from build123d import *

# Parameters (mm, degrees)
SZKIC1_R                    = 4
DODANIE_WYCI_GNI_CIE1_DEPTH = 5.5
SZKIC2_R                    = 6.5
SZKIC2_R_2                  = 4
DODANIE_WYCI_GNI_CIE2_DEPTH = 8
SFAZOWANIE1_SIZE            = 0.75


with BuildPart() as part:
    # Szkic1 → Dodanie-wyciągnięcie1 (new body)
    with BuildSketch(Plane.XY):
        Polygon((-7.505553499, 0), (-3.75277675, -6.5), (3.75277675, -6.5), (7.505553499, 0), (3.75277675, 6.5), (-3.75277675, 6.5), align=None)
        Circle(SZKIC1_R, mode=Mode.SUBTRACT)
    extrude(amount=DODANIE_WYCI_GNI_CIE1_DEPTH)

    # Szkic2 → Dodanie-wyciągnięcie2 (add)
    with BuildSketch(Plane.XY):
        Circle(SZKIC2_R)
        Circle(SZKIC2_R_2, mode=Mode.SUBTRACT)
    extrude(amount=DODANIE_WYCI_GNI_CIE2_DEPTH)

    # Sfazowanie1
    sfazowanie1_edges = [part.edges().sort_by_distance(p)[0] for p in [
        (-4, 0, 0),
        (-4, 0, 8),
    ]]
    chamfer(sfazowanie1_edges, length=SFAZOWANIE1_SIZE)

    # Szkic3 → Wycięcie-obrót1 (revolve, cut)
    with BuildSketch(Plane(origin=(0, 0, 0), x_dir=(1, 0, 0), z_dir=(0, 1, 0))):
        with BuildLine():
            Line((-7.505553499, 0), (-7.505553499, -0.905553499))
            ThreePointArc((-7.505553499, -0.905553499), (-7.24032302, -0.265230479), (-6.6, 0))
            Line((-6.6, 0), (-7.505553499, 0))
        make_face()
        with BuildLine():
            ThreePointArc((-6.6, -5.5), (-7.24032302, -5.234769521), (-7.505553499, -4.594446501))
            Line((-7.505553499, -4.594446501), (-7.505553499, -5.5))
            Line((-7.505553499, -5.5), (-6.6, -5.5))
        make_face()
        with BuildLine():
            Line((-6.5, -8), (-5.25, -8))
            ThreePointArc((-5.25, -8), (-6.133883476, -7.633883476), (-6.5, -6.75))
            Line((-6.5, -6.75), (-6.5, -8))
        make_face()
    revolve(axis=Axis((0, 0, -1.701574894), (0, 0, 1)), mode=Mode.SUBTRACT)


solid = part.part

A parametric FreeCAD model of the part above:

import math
import FreeCAD as App
import Part
import Sketcher
Q = App.Units.Quantity


def edges_at(feature, points):
    """Names of the edges that pass closest to the given points."""
    edges = feature.Shape.Edges
    near = lambda p: min(range(len(edges)), key=lambda i: edges[i].distToShape(Part.Vertex(*p))[0])
    return sorted({f"Edge{near(p) + 1}" for p in points})

doc = App.newDocument("Part")
body = doc.addObject("PartDesign::Body", "Body")

# Sketch on XY plane
sketch1 = doc.addObject("Sketcher::SketchObject", "Sketch")
body.addObject(sketch1)
sketch1.AttachmentSupport = (doc.XY_Plane, [""])
sketch1.MapMode = "FlatFace"
sketch1.addGeometry([
    Part.LineSegment(App.Vector(-7.5, 0, 0), App.Vector(-3.8, -6.5, 0)),  # 0
    Part.LineSegment(App.Vector(-3.8, -6.5, 0), App.Vector(3.8, -6.5, 0)),  # 1
    Part.LineSegment(App.Vector(3.8, -6.5, 0), App.Vector(7.5, 0, 0)),  # 2
    Part.LineSegment(App.Vector(7.5, 0, 0), App.Vector(3.8, 6.5, 0)),  # 3
    Part.LineSegment(App.Vector(3.8, 6.5, 0), App.Vector(-3.8, 6.5, 0)),  # 4
    Part.LineSegment(App.Vector(-3.8, 6.5, 0), App.Vector(-7.5, 0, 0)),  # 5
    Part.Circle(App.Vector(0, 0, 0), App.Vector(0, 0, 1), 4),  # 6
], False)
sketch1.addConstraint([
    Sketcher.Constraint("Coincident", 0, 2, 1, 1),
    Sketcher.Constraint("Coincident", 1, 2, 2, 1),
    Sketcher.Constraint("Coincident", 2, 2, 3, 1),
    Sketcher.Constraint("Coincident", 3, 2, 4, 1),
    Sketcher.Constraint("Coincident", 4, 2, 5, 1),
    Sketcher.Constraint("Coincident", 5, 2, 0, 1),
    Sketcher.Constraint("Horizontal", 1),
    Sketcher.Constraint("Horizontal", 4),
    Sketcher.Constraint("Coincident", 6, 3, -1, 1),
    Sketcher.Constraint("Symmetric", 0, 2, 3, 2, -1, 1),
    Sketcher.Constraint("Symmetric", 2, 2, 5, 2, -1, 1),
    Sketcher.Constraint("PointOnObject", 2, 2, -1),
    Sketcher.Constraint("Parallel", 2, 5),
    Sketcher.Constraint("Vertical", 1, 2, 3, 2),
    Sketcher.Constraint("Diameter", 6, Q("8 mm")),
    Sketcher.Constraint("Angle", 0, Q("-60 deg")),
    Sketcher.Constraint("DistanceY", 1, 2, 3, 2, Q("13 mm")),
    Sketcher.Constraint("DistanceX", 1, 1, 1, 2, Q("7.505554 mm")),
])
pad1 = doc.addObject("PartDesign::Pad", "Pad")
body.addObject(pad1)
pad1.Profile = sketch1
pad1.Length = 5.5

# Sketch on XY plane
sketch2 = doc.addObject("Sketcher::SketchObject", "Sketch001")
body.addObject(sketch2)
sketch2.AttachmentSupport = (doc.XY_Plane, [""])
sketch2.MapMode = "FlatFace"
sketch2.addGeometry([
    Part.Circle(App.Vector(0, 0, 0), App.Vector(0, 0, 1), 6.5),
    Part.Circle(App.Vector(0, 0, 0), App.Vector(0, 0, 1), 4),
], False)
sketch2.addConstraint([
    Sketcher.Constraint("Coincident", 0, 3, -1, 1),
    Sketcher.Constraint("Coincident", 1, 3, -1, 1),
    Sketcher.Constraint("Diameter", 0, Q("13 mm")),
    Sketcher.Constraint("Diameter", 1, Q("8 mm")),
])
pad2 = doc.addObject("PartDesign::Pad", "Pad001")
body.addObject(pad2)
pad2.Profile = sketch2
pad2.Length = 8
doc.recompute()

chamfer = doc.addObject("PartDesign::Chamfer", "Chamfer")
body.addObject(chamfer)
chamfer.Base = (pad2, edges_at(pad2, [(-4, 0, 0), (-4, 0, 8)]))
chamfer.Size = 0.75

# Sketch on XZ plane
sketch3 = doc.addObject("Sketcher::SketchObject", "Sketch002")
body.addObject(sketch3)
sketch3.AttachmentSupport = (doc.XZ_Plane, [""])
sketch3.MapMode = "FlatFace"
sketch3.addGeometry([
    Part.LineSegment(App.Vector(-7.5, 0, 0), App.Vector(-7.5, 0.9, 0)),  # 0
    Part.ArcOfCircle(Part.Circle(App.Vector(-6.6, 0.9, 0), App.Vector(0, 0, 1), 0.9), math.radians(180), math.radians(270)),  # 1
    Part.LineSegment(App.Vector(-6.6, 0, 0), App.Vector(-7.5, 0, 0)),  # 2
    Part.ArcOfCircle(Part.Circle(App.Vector(-6.6, 4.6, 0), App.Vector(0, 0, 1), 0.9), math.radians(90), math.radians(180)),  # 3
    Part.LineSegment(App.Vector(-7.5, 4.6, 0), App.Vector(-7.5, 5.5, 0)),  # 4
    Part.LineSegment(App.Vector(-7.5, 5.5, 0), App.Vector(-6.6, 5.5, 0)),  # 5
    Part.LineSegment(App.Vector(-6.5, 8, 0), App.Vector(-5.2, 8, 0)),  # 6
    Part.ArcOfCircle(Part.Circle(App.Vector(-5.2, 6.7, 0), App.Vector(0, 0, 1), 1.3), math.radians(90), math.radians(180)),  # 7
    Part.LineSegment(App.Vector(-6.5, 6.8, 0), App.Vector(-6.5, 8, 0)),  # 8
], False)
sketch3.addConstraint([
    Sketcher.Constraint("Tangent", 0, 2, 1, 1),
    Sketcher.Constraint("Tangent", 1, 2, 2, 1),
    Sketcher.Constraint("Coincident", 2, 2, 0, 1),
    Sketcher.Constraint("Tangent", 3, 2, 4, 1),
    Sketcher.Constraint("Coincident", 4, 2, 5, 1),
    Sketcher.Constraint("Tangent", 5, 2, 3, 1),
    Sketcher.Constraint("Tangent", 6, 2, 7, 1),
    Sketcher.Constraint("Tangent", 7, 2, 8, 1),
    Sketcher.Constraint("Coincident", 8, 2, 6, 1),
    Sketcher.Constraint("Vertical", 0),
    Sketcher.Constraint("Horizontal", 2),
    Sketcher.Constraint("Vertical", 4),
    Sketcher.Constraint("Horizontal", 5),
    Sketcher.Constraint("Horizontal", 6),
    Sketcher.Constraint("Vertical", 8),
    Sketcher.Constraint("Equal", 1, 3),
    Sketcher.Constraint("PointOnObject", 1, 2, -1),
    Sketcher.Constraint("Vertical", 1, 3, 3, 3),
    Sketcher.Constraint("Radius", 7, Q("1.25 mm")),
    Sketcher.Constraint("DistanceY", -1, 1, 6, 2, Q("8 mm")),
    Sketcher.Constraint("DistanceX", 1, 3, -1, 1, Q("6.6 mm")),
    Sketcher.Constraint("DistanceY", -1, 1, 4, 2, Q("5.5 mm")),
    Sketcher.Constraint("DistanceX", 7, 2, -1, 1, Q("6.5 mm")),
    Sketcher.Constraint("Radius", 1, Q("0.905553 mm")),
])
groove = doc.addObject("PartDesign::Groove", "Groove")
body.addObject(groove)
groove.Profile = sketch3
groove.ReferenceAxis = (sketch3, ["V_Axis"])
groove.Angle = 360

doc.recompute()
